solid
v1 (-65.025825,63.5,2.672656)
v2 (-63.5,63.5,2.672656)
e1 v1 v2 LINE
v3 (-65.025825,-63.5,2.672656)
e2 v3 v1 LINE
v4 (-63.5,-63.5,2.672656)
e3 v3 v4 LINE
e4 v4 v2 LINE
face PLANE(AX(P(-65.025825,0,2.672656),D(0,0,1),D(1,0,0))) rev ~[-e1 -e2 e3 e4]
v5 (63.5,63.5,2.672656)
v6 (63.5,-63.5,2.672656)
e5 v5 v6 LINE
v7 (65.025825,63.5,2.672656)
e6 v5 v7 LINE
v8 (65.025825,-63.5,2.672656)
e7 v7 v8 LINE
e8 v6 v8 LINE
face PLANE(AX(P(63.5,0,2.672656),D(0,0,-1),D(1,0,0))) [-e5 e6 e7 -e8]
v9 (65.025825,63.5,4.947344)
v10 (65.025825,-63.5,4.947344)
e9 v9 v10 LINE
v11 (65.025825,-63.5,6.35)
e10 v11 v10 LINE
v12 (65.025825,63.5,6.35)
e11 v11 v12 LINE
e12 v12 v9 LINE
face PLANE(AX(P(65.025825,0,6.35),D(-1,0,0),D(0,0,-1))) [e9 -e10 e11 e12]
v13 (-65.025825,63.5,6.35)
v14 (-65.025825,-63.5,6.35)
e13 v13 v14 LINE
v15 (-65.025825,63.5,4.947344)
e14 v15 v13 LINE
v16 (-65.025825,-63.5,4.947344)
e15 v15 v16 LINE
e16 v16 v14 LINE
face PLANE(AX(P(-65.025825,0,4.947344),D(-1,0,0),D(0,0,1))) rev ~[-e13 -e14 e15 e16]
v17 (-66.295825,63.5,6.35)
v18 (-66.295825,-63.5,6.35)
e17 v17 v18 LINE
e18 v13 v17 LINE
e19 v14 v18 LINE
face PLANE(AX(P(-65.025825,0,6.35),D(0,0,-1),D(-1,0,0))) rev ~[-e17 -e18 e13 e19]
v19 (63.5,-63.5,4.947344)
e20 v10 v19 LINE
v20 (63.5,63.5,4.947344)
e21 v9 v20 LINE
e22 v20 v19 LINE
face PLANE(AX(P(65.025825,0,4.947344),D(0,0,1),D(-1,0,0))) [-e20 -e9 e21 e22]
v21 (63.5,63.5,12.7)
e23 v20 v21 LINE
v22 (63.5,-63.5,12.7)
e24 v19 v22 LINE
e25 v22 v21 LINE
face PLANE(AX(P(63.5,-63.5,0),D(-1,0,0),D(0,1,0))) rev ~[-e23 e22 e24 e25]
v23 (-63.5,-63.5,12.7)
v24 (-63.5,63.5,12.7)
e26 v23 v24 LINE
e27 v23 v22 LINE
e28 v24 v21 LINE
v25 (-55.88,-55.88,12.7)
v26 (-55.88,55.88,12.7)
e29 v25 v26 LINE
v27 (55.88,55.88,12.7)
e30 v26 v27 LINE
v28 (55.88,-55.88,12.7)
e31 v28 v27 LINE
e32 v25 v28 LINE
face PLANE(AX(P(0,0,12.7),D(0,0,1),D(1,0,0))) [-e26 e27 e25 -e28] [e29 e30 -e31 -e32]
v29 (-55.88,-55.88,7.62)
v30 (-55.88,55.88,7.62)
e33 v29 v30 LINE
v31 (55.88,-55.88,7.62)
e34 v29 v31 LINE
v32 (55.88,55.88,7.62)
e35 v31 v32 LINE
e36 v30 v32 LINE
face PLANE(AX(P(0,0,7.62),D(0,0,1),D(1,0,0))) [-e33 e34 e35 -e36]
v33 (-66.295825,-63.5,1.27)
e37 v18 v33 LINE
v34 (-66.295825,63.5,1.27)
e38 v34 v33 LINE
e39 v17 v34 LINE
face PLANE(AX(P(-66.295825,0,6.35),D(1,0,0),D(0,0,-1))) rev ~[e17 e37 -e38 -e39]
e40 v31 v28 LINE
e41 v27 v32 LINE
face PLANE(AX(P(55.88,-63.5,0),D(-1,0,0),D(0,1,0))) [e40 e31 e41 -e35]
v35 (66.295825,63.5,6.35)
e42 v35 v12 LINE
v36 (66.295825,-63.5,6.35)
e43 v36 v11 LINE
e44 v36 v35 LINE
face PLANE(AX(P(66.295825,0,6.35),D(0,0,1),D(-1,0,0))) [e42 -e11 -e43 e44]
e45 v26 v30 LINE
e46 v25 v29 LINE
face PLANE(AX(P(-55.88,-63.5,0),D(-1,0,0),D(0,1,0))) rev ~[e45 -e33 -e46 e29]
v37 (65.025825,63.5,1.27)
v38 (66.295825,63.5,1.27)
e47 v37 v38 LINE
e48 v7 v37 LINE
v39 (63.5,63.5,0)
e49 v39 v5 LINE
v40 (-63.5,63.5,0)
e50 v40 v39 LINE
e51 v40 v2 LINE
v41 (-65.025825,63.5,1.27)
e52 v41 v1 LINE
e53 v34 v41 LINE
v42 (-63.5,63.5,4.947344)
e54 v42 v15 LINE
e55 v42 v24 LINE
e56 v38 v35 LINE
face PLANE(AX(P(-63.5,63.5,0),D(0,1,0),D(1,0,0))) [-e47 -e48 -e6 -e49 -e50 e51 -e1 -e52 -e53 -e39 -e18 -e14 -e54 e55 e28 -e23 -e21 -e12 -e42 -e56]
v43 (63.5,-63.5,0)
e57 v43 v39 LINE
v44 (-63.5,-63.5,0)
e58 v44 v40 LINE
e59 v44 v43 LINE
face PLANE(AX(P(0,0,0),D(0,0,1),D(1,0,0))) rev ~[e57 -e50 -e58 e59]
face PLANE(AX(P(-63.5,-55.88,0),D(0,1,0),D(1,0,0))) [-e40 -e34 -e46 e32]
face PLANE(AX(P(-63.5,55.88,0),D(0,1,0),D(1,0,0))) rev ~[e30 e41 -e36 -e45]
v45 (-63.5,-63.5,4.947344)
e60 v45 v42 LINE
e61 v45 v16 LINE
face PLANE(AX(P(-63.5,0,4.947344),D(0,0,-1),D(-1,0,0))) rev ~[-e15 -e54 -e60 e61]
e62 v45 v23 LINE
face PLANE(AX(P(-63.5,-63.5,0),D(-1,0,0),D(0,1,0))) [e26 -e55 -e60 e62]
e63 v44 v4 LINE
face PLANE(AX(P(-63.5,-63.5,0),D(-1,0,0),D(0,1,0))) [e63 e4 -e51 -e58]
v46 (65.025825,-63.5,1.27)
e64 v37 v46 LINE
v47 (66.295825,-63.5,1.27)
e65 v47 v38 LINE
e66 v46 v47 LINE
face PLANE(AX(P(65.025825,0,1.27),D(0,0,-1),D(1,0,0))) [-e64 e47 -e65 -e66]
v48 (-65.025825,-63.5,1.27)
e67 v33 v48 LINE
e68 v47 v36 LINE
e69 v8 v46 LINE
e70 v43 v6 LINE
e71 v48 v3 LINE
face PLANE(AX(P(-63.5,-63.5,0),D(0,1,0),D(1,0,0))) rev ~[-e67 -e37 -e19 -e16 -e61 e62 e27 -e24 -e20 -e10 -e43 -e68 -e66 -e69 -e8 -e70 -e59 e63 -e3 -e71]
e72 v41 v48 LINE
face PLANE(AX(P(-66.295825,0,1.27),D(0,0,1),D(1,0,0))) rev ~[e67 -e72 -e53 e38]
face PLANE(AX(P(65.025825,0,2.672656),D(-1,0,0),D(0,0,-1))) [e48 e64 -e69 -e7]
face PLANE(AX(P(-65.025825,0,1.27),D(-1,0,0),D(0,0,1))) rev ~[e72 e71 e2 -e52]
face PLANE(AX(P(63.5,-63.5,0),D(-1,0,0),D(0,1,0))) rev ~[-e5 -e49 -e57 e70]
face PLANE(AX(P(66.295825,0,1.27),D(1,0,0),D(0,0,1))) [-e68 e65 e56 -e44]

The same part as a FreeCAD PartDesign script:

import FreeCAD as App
import Part
import Sketcher
Q = App.Units.Quantity


def faces_at(feature, points):
    """Names of the faces that lie closest to the given points."""
    faces = feature.Shape.Faces
    near = lambda p: min(range(len(faces)), key=lambda i: faces[i].distToShape(Part.Vertex(*p))[0])
    return sorted({f"Face{near(p) + 1}" for p in points})

doc = App.newDocument("Part")
params = doc.addObject("Spreadsheet::Sheet", "Params")
for row, (alias, value) in enumerate([
    ("sketch1_width", "5 in"),
    ("pad1_length", "0.5 in"),
    ("thickness_wall", "0.3 in"),
    ("sketch2_height", "0.2 in"),
    ("sketch2_width", "0.05 in"),
    ("pad2_length", "5 in"),
], start=1):
    params.set(f"A{row}", alias)
    params.set(f"B{row}", "=" + value)
    params.setAlias(f"B{row}", alias)

body = doc.addObject("PartDesign::Body", "Body")

# Sketch on XY plane
sketch1 = doc.addObject("Sketcher::SketchObject", "Sketch")
body.addObject(sketch1)
sketch1.AttachmentSupport = (doc.XY_Plane, [""])
sketch1.MapMode = "FlatFace"
sketch1.addGeometry(Part.LineSegment(App.Vector(-64, 64, 0), App.Vector(-64, -64, 0)), False)
sketch1.addGeometry(Part.LineSegment(App.Vector(-64, -64, 0), App.Vector(64, -64, 0)), False)
sketch1.addGeometry(Part.LineSegment(App.Vector(64, -64, 0), App.Vector(64, 64, 0)), False)
sketch1.addGeometry(Part.LineSegment(App.Vector(64, 64, 0), App.Vector(-64, 64, 0)), False)
sketch1.addConstraint(Sketcher.Constraint("Coincident", 0, 2, 1, 1))
sketch1.addConstraint(Sketcher.Constraint("Coincident", 1, 2, 2, 1))
sketch1.addConstraint(Sketcher.Constraint("Coincident", 2, 2, 3, 1))
sketch1.addConstraint(Sketcher.Constraint("Coincident", 3, 2, 0, 1))
sketch1.addConstraint(Sketcher.Constraint("Vertical", 0))
sketch1.addConstraint(Sketcher.Constraint("Horizontal", 1))
sketch1.addConstraint(Sketcher.Constraint("Vertical", 2))
sketch1.addConstraint(Sketcher.Constraint("Horizontal", 3))
sketch1.addConstraint(Sketcher.Constraint("Symmetric", 0, 2, 2, 2, -1, 1))
sketch1.addConstraint(Sketcher.Constraint("Equal", 3, 0))
sketch1.addConstraint(Sketcher.Constraint("DistanceX", 1, 1, 1, 2, Q("5 in")))
sketch1.setExpression("Constraints[10]", "Params.sketch1_width")
pad1 = doc.addObject("PartDesign::Pad", "Pad")
body.addObject(pad1)
pad1.Profile = sketch1
pad1.setExpression("Length", "Params.pad1_length")
doc.recompute()

thickness = doc.addObject("PartDesign::Thickness", "Thickness")
body.addObject(thickness)
thickness.Base = (pad1, faces_at(pad1, [(0, 0, 12.7)]))
thickness.setExpression("Value", "Params.thickness_wall")
thickness.Reversed = True
thickness.Join = "Arc"

# Sketch on XZ plane
sketch2 = doc.addObject("Sketcher::SketchObject", "Sketch001")
body.addObject(sketch2)
sketch2.AttachmentSupport = (doc.XZ_Plane, [""])
sketch2.MapMode = "FlatFace"
sketch2.addGeometry(Part.LineSegment(App.Vector(-63.5, 4.9, 0), App.Vector(-65, 4.9, 0)), False)
sketch2.addGeometry(Part.LineSegment(App.Vector(-65, 4.9, 0), App.Vector(-65, 6.3, 0)), False)
sketch2.addGeometry(Part.LineSegment(App.Vector(-65, 6.3, 0), App.Vector(-66.3, 6.3, 0)), False)
sketch2.addGeometry(Part.LineSegment(App.Vector(-66.3, 6.3, 0), App.Vector(-66.3, 1.3, 0)), False)
sketch2.addGeometry(Part.LineSegment(App.Vector(-66.3, 1.3, 0), App.Vector(-65, 1.3, 0)), False)
sketch2.addGeometry(Part.LineSegment(App.Vector(-65, 1.3, 0), App.Vector(-65, 2.7, 0)), False)
sketch2.addGeometry(Part.LineSegment(App.Vector(-65, 2.7, 0), App.Vector(-63.5, 2.7, 0)), False)
sketch2.addGeometry(Part.LineSegment(App.Vector(-63.5, 2.7, 0), App.Vector(-63.5, 4.9, 0)), False)
sketch2.addGeometry(Part.LineSegment(App.Vector(65, 6.3, 0), App.Vector(65, 4.9, 0)), False)
sketch2.addGeometry(Part.LineSegment(App.Vector(65, 4.9, 0), App.Vector(63.5, 4.9, 0)), False)
sketch2.addGeometry(Part.LineSegment(App.Vector(63.5, 4.9, 0), App.Vector(63.5, 2.7, 0)), False)
sketch2.addGeometry(Part.LineSegment(App.Vector(63.5, 2.7, 0), App.Vector(65, 2.7, 0)), False)
sketch2.addGeometry(Part.LineSegment(App.Vector(65, 2.7, 0), App.Vector(65, 1.3, 0)), False)
sketch2.addGeometry(Part.LineSegment(App.Vector(65, 1.3, 0), App.Vector(66.3, 1.3, 0)), False)
sketch2.addGeometry(Part.LineSegment(App.Vector(66.3, 1.3, 0), App.Vector(66.3, 6.3, 0)), False)
sketch2.addGeometry(Part.LineSegment(App.Vector(66.3, 6.3, 0), App.Vector(65, 6.3, 0)), False)
sketch2.addConstraint(Sketcher.Constraint("Coincident", 0, 2, 1, 1))
sketch2.addConstraint(Sketcher.Constraint("Coincident", 1, 2, 2, 1))
sketch2.addConstraint(Sketcher.Constraint("Coincident", 2, 2, 3, 1))
sketch2.addConstraint(Sketcher.Constraint("Coincident", 3, 2, 4, 1))
sketch2.addConstraint(Sketcher.Constraint("Coincident", 4, 2, 5, 1))
sketch2.addConstraint(Sketcher.Constraint("Coincident", 5, 2, 6, 1))
sketch2.addConstraint(Sketcher.Constraint("Coincident", 6, 2, 7, 1))
sketch2.addConstraint(Sketcher.Constraint("Coincident", 7, 2, 0, 1))
sketch2.addConstraint(Sketcher.Constraint("Coincident", 8, 2, 9, 1))
sketch2.addConstraint(Sketcher.Constraint("Coincident", 9, 2, 10, 1))
sketch2.addConstraint(Sketcher.Constraint("Coincident", 10, 2, 11, 1))
sketch2.addConstraint(Sketcher.Constraint("Coincident", 11, 2, 12, 1))
sketch2.addConstraint(Sketcher.Constraint("Coincident", 12, 2, 13, 1))
sketch2.addConstraint(Sketcher.Constraint("Coincident", 13, 2, 14, 1))
sketch2.addConstraint(Sketcher.Constraint("Coincident", 14, 2, 15, 1))
sketch2.addConstraint(Sketcher.Constraint("Coincident", 15, 2, 8, 1))
sketch2.addConstraint(Sketcher.Constraint("Horizontal", 0))
sketch2.addConstraint(Sketcher.Constraint("Vertical", 1))
sketch2.addConstraint(Sketcher.Constraint("Horizontal", 2))
sketch2.addConstraint(Sketcher.Constraint("Vertical", 3))
sketch2.addConstraint(Sketcher.Constraint("Horizontal", 4))
sketch2.addConstraint(Sketcher.Constraint("Vertical", 5))
sketch2.addConstraint(Sketcher.Constraint("Horizontal", 6))
sketch2.addConstraint(Sketcher.Constraint("Vertical", 7))
sketch2.addConstraint(Sketcher.Constraint("Vertical", 8))
sketch2.addConstraint(Sketcher.Constraint("Horizontal", 9))
sketch2.addConstraint(Sketcher.Constraint("Vertical", 10))
sketch2.addConstraint(Sketcher.Constraint("Horizontal", 11))
sketch2.addConstraint(Sketcher.Constraint("Vertical", 12))
sketch2.addConstraint(Sketcher.Constraint("Horizontal", 13))
sketch2.addConstraint(Sketcher.Constraint("Vertical", 14))
sketch2.addConstraint(Sketcher.Constraint("Horizontal", 15))
sketch2.addConstraint(Sketcher.Constraint("Symmetric", 0, 2, 8, 2, -2))
sketch2.addConstraint(Sketcher.Constraint("Symmetric", 6, 2, 10, 2, -2))
sketch2.addConstraint(Sketcher.Constraint("Symmetric", 4, 2, 12, 2, -2))
sketch2.addConstraint(Sketcher.Constraint("Symmetric", 2, 2, 14, 2, -2))
sketch2.addConstraint(Sketcher.Constraint("Vertical", 1, 2, 4, 2))
sketch2.addConstraint(Sketcher.Constraint("Equal", 1, 5))
sketch2.addConstraint(Sketcher.Constraint("DistanceY", 3, 2, 3, 1, Q("0.2 in")))
sketch2.addConstraint(Sketcher.Constraint("DistanceX", 7, 2, 9, 2, Q("5 in")))
sketch2.addConstraint(Sketcher.Constraint("DistanceX", 2, 2, 2, 1, Q("0.05 in")))
sketch2.addConstraint(Sketcher.Constraint("DistanceY", -1, 1, 1, 2, Q("0.25 in")))
sketch2.addConstraint(Sketcher.Constraint("DistanceY", 7, 1, 7, 2, 2.274688))
sketch2.addConstraint(Sketcher.Constraint("DistanceX", 0, 2, 0, 1, 1.525825))
sketch2.setExpression("Constraints[38]", "Params.sketch2_height")
sketch2.setExpression("Constraints[40]", "Params.sketch2_width")
pad2 = doc.addObject("PartDesign::Pad", "Pad001")
body.addObject(pad2)
pad2.Profile = sketch2
pad2.setExpression("Length", "Params.pad2_length")
pad2.Midplane = True

doc.recompute()
